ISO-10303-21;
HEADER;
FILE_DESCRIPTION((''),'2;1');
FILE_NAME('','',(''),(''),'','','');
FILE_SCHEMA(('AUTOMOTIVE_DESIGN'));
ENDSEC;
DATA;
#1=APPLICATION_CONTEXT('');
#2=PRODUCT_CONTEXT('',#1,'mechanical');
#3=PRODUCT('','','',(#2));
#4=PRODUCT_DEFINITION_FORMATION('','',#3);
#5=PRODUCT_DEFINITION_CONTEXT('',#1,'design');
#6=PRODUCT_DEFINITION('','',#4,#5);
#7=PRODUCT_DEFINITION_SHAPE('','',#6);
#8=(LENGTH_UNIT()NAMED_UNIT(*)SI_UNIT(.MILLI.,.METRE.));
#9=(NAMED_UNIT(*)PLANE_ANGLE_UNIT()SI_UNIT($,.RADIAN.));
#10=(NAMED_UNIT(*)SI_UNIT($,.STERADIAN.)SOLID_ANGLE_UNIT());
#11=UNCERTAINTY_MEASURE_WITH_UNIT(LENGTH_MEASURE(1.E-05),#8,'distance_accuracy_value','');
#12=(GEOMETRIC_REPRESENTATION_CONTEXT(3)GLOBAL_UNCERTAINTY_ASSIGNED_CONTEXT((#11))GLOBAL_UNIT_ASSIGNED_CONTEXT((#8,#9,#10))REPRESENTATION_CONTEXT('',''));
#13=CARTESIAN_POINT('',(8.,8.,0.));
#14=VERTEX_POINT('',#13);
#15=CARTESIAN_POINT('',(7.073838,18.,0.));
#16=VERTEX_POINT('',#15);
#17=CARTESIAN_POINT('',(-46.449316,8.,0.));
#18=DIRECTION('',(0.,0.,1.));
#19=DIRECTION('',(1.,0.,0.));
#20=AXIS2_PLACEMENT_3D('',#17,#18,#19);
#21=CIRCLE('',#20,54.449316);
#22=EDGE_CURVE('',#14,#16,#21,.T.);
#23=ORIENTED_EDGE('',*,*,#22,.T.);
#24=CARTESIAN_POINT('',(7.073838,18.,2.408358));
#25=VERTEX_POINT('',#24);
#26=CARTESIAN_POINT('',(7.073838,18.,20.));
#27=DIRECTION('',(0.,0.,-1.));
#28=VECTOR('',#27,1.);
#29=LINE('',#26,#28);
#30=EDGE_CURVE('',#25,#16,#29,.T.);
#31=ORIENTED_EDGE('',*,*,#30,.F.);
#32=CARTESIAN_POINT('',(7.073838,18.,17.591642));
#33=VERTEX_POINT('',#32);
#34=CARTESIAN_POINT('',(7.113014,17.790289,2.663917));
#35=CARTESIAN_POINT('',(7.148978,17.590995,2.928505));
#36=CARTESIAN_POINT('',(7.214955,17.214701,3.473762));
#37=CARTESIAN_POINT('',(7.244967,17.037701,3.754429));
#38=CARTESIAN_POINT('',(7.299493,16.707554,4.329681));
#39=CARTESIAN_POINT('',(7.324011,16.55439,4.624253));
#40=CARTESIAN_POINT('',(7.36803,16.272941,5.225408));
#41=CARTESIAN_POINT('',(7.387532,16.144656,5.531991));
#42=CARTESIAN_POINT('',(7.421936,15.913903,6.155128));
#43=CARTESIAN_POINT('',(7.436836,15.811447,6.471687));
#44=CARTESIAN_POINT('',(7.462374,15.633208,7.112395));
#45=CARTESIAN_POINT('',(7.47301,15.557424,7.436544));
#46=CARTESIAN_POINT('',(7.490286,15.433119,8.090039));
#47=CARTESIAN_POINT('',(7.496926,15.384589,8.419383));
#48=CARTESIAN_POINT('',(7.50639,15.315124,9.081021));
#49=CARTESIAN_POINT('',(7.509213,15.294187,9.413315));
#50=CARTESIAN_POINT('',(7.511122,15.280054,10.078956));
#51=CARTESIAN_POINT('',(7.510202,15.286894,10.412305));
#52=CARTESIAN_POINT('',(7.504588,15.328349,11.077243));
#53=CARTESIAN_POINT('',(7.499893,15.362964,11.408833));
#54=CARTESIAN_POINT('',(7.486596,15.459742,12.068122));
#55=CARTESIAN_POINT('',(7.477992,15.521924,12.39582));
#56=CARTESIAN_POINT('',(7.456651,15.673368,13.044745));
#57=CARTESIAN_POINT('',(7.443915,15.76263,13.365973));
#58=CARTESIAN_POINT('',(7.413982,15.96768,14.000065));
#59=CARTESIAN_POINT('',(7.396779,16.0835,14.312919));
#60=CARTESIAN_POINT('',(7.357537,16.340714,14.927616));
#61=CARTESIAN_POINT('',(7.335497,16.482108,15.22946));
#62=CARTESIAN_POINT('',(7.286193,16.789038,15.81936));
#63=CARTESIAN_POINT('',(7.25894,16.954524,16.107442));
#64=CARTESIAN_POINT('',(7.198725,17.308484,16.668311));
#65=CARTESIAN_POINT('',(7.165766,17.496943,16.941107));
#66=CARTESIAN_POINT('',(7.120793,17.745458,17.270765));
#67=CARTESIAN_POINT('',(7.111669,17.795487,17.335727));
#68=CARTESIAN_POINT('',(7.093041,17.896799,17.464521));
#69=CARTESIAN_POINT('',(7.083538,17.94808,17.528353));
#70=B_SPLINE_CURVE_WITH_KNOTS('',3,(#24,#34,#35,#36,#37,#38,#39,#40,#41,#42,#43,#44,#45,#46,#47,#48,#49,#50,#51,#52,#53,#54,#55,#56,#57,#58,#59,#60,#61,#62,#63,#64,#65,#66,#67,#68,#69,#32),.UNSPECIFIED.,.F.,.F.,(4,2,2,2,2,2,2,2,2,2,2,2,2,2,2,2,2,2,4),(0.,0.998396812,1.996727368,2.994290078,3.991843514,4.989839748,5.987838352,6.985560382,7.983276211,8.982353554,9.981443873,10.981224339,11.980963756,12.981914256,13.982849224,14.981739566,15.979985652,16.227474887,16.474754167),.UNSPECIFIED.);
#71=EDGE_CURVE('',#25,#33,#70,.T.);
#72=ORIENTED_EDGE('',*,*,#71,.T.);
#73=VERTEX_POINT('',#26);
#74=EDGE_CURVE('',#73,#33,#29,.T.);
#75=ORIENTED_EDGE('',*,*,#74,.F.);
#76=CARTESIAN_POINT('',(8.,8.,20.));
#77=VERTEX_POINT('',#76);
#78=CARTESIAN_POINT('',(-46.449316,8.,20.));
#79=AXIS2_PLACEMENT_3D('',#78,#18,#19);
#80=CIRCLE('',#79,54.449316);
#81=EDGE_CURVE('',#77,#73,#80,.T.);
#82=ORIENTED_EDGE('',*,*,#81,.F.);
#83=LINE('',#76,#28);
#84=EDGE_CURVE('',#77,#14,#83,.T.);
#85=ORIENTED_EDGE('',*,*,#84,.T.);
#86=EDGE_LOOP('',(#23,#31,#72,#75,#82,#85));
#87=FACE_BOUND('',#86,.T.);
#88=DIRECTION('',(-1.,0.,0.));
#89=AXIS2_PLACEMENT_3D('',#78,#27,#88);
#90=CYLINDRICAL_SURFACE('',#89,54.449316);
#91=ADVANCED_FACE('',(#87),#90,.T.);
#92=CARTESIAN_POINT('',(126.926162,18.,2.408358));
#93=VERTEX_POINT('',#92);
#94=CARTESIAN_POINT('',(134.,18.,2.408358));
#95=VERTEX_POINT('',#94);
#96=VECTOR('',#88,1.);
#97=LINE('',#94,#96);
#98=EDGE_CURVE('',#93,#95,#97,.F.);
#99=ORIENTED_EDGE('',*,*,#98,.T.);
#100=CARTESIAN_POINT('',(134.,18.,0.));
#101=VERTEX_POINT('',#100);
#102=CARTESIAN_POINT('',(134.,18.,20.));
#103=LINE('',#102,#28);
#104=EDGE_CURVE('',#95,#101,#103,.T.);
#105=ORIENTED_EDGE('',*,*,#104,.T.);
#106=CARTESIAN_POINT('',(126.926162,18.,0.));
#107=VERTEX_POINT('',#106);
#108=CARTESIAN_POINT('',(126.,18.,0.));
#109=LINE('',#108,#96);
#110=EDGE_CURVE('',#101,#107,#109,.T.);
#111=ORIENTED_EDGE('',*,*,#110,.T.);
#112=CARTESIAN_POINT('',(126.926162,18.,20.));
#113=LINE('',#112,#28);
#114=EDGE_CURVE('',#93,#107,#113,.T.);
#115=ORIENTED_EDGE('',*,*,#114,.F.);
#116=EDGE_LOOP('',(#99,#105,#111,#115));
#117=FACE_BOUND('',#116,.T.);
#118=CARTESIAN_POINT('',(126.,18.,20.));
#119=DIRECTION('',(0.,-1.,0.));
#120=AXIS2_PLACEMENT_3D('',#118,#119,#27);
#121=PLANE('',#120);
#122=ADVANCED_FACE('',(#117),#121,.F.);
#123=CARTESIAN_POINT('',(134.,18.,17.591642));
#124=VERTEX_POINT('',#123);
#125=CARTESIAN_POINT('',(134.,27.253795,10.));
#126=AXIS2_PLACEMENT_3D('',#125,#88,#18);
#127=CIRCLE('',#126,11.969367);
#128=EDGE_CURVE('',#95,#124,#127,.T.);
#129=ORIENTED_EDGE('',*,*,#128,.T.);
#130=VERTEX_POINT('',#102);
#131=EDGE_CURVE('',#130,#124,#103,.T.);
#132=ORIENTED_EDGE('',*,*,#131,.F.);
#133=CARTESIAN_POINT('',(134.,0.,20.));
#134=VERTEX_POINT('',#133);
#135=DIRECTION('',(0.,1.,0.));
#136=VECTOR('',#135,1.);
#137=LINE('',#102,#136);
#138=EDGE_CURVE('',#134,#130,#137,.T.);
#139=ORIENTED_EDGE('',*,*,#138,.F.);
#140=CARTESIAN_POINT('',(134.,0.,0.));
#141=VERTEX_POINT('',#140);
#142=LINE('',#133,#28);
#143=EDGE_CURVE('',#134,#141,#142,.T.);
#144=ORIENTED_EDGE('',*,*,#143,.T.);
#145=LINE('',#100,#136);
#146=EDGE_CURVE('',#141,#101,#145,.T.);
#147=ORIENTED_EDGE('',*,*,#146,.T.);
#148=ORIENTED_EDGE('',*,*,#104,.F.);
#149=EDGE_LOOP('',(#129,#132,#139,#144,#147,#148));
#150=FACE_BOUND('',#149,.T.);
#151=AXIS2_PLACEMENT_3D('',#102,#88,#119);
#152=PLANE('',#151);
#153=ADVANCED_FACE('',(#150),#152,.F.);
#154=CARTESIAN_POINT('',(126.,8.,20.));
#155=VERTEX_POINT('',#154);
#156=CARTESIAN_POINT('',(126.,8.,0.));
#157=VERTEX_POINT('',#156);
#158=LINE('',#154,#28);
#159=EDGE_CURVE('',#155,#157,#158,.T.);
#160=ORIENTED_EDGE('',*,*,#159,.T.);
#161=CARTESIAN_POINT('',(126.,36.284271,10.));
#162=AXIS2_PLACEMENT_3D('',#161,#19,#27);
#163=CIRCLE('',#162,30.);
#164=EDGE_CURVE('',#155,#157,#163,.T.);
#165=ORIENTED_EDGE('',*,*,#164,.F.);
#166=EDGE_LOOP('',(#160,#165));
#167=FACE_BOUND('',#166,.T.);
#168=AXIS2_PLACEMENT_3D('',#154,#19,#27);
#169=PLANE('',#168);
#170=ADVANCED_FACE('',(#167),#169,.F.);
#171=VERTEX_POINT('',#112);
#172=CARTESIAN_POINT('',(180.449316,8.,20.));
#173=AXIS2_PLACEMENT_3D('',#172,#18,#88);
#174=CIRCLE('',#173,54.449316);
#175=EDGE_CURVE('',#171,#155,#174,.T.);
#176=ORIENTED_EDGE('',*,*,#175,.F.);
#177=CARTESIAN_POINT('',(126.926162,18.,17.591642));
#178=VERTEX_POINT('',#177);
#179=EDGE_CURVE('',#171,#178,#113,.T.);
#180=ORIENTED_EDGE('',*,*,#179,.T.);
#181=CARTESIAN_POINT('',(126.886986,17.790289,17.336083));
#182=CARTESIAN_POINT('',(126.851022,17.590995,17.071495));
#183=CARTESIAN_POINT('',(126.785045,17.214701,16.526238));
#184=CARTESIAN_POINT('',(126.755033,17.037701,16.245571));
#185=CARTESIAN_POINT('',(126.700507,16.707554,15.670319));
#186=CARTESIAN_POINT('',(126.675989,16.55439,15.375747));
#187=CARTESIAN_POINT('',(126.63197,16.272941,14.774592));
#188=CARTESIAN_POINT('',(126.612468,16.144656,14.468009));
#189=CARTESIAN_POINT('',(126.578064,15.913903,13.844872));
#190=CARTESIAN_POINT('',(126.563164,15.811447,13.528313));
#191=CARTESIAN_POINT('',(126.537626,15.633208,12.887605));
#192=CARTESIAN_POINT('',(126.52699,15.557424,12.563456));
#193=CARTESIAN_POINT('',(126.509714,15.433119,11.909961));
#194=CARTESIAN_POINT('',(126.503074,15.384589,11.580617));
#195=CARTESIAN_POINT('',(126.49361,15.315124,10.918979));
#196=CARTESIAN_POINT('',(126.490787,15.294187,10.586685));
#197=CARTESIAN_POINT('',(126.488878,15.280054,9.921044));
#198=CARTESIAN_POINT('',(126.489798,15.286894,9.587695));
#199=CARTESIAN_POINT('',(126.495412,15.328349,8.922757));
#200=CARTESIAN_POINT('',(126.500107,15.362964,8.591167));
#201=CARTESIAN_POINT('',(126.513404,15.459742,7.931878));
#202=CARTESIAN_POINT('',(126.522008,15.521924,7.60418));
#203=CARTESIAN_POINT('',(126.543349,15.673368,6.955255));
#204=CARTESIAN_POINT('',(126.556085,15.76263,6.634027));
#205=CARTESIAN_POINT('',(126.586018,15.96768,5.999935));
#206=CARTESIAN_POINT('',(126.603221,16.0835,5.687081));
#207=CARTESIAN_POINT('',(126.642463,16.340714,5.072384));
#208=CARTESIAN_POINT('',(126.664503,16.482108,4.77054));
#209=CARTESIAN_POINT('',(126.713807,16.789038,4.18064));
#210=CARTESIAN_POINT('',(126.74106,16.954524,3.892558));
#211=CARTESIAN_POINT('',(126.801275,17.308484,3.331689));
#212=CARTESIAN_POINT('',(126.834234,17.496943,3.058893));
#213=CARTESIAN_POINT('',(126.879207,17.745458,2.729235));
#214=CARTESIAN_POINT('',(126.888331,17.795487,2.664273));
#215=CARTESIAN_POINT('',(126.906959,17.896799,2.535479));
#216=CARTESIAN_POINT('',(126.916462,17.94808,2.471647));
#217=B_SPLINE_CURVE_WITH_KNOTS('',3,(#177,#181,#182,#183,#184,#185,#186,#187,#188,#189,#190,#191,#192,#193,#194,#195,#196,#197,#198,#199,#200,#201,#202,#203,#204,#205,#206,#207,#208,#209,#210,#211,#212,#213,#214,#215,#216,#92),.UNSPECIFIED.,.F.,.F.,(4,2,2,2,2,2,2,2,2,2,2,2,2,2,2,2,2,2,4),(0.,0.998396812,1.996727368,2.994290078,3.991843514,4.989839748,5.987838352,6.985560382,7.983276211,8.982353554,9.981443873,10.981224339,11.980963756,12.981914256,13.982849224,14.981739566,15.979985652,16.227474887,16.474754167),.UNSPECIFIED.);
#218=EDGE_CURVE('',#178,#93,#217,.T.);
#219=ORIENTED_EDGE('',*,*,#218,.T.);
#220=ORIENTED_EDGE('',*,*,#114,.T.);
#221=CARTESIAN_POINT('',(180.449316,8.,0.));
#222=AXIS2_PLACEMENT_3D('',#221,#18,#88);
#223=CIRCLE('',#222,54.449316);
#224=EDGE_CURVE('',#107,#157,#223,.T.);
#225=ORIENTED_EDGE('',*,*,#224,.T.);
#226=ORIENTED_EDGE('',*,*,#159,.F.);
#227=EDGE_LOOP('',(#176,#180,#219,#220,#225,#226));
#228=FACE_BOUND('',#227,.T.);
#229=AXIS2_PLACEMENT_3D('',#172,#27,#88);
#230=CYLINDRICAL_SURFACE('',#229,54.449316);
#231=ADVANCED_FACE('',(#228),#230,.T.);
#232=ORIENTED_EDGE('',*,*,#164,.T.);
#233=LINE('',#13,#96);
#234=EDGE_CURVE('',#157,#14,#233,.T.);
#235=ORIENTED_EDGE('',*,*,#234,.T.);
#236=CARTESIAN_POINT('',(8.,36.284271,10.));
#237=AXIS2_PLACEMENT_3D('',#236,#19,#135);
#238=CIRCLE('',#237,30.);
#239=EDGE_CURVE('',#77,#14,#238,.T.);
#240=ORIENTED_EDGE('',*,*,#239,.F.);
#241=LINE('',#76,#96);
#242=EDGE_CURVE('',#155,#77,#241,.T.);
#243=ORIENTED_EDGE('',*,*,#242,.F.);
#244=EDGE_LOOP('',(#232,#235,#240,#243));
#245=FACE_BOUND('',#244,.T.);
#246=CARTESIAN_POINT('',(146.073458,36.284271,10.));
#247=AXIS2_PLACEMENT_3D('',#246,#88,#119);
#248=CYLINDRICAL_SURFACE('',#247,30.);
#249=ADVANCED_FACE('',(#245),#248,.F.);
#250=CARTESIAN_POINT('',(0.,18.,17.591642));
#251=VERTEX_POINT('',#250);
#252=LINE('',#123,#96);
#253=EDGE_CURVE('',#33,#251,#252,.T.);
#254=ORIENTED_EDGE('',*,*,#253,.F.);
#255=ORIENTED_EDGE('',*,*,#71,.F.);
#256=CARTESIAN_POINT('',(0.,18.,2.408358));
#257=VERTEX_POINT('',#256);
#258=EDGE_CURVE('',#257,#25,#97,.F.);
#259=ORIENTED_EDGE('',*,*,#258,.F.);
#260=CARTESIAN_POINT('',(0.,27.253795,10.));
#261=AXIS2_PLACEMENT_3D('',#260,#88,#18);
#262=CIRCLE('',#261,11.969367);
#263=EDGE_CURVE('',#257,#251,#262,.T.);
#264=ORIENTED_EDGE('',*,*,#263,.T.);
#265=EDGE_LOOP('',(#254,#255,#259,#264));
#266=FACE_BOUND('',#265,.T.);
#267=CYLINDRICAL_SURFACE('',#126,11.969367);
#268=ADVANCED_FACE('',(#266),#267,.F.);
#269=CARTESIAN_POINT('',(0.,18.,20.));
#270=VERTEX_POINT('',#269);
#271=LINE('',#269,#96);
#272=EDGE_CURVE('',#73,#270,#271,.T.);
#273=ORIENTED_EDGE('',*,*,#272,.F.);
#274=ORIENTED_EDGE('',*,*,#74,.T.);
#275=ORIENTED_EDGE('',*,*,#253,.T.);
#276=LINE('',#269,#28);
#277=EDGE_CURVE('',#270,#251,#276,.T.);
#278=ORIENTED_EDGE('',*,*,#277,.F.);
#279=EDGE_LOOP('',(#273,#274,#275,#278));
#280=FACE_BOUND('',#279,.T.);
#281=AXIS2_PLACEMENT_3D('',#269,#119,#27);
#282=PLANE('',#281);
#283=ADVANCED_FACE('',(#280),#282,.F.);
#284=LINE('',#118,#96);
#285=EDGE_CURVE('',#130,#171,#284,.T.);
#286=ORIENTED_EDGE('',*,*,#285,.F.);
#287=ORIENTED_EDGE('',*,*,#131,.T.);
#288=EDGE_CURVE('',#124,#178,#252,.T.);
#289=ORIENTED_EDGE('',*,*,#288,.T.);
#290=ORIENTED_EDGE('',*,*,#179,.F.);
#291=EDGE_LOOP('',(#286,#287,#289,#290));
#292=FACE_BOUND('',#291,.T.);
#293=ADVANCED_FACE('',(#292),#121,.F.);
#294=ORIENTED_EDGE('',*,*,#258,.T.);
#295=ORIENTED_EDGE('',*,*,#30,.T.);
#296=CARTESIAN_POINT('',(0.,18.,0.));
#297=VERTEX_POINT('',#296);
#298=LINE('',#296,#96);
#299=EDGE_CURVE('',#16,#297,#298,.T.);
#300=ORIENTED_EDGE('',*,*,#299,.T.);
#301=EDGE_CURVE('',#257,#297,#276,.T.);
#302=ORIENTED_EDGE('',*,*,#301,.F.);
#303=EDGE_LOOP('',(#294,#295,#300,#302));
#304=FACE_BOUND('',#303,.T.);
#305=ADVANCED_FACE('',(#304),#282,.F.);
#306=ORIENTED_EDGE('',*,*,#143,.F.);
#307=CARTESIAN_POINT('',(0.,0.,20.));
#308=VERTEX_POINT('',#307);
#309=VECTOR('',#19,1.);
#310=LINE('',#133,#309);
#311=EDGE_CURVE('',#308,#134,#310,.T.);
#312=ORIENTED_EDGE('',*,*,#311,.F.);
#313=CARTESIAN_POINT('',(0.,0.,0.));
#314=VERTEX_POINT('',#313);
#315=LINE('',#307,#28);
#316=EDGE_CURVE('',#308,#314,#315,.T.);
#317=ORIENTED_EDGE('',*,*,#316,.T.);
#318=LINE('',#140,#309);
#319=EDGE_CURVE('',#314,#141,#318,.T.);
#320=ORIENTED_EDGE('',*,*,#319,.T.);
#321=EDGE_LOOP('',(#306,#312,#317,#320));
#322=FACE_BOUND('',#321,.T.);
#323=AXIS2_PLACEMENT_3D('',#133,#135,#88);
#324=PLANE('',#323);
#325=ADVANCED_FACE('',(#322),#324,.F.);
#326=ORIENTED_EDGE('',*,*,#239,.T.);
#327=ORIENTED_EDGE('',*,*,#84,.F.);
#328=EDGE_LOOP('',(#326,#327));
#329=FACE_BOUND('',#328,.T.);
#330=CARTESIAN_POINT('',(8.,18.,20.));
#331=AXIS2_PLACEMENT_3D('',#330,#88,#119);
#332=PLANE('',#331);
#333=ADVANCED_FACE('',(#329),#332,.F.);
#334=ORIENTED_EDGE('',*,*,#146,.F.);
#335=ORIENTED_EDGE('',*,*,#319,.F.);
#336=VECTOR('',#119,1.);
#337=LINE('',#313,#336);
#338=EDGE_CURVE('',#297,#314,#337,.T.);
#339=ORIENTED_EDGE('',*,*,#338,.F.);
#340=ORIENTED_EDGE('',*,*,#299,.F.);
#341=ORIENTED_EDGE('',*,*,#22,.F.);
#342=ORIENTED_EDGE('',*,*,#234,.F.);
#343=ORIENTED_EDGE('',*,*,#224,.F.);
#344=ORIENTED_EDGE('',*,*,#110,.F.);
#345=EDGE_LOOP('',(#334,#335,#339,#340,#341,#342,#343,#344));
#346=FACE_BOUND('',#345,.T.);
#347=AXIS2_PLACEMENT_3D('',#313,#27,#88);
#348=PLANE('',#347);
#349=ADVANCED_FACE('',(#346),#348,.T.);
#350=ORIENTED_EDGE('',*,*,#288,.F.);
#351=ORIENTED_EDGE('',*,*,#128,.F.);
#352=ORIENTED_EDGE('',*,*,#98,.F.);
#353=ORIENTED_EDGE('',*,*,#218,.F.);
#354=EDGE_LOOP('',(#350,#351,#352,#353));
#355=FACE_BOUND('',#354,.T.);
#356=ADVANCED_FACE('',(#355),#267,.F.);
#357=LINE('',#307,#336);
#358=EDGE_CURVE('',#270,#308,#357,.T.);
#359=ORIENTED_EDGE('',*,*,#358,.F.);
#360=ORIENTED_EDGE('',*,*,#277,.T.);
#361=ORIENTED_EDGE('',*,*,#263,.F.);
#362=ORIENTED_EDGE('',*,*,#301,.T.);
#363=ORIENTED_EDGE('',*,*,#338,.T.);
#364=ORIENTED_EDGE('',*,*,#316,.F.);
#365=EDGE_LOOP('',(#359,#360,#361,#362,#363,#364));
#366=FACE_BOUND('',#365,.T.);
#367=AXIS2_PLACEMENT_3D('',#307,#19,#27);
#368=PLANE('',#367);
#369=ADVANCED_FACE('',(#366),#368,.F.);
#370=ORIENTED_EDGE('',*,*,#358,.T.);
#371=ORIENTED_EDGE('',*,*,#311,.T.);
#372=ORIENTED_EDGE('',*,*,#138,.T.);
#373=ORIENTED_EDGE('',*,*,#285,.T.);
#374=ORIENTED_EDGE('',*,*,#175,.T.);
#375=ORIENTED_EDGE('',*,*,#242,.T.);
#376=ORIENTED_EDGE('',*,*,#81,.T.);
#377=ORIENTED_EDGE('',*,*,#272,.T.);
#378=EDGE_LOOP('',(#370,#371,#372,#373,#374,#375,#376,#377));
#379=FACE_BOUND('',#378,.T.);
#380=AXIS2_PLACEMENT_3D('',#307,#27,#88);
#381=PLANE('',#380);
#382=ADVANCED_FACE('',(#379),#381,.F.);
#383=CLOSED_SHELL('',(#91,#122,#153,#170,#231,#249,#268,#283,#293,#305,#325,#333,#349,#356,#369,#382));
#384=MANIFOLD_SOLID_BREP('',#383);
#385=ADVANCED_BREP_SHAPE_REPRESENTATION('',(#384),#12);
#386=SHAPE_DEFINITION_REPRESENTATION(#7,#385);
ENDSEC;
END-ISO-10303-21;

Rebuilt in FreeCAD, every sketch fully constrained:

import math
import FreeCAD as App
import Part
import Sketcher
from FreeCAD import Vector


def add_polygon(sketch, points):
    """Adds a closed chain of lines whose ends are joined by coincident constraints."""
    first, n = sketch.GeometryCount, len(points)
    for a, b in zip(points, points[1:] + points[:1]):
        sketch.addGeometry(Part.LineSegment(App.Vector(*a, 0), App.Vector(*b, 0)), False)
    for i in range(n):
        sketch.addConstraint(Sketcher.Constraint("Coincident", first + i, 2, first + (i + 1) % n, 1))

doc = App.newDocument("Part")
body = doc.addObject("PartDesign::Body", "Body")

sketch1 = body.newObject("Sketcher::SketchObject", "Sketch")
sketch1.AttachmentSupport = (doc.getObject("XY_Plane"), [""])
sketch1.MapMode = "FlatFace"
add_polygon(sketch1, [(0, 18), (0, 0), (134, 0), (134, 18), (126, 18), (126, 8), (8, 8), (8, 18)])
sketch1.addConstraint(Sketcher.Constraint("Vertical", 0))
sketch1.addConstraint(Sketcher.Constraint("Horizontal", 1))
sketch1.addConstraint(Sketcher.Constraint("Vertical", 2))
sketch1.addConstraint(Sketcher.Constraint("Horizontal", 3))
sketch1.addConstraint(Sketcher.Constraint("Vertical", 4))
sketch1.addConstraint(Sketcher.Constraint("Horizontal", 5))
sketch1.addConstraint(Sketcher.Constraint("Vertical", 6))
sketch1.addConstraint(Sketcher.Constraint("Horizontal", 7))
sketch1.addConstraint(Sketcher.Constraint("Coincident", 0, 2, -1, 1))
sketch1.addConstraint(Sketcher.Constraint("Horizontal", 3, 2, 6, 2))
sketch1.addConstraint(Sketcher.Constraint("Equal", 3, 7))
sketch1.addConstraint(Sketcher.Constraint("DistanceX", 1, 1, 1, 2, 134.0))
sketch1.addConstraint(Sketcher.Constraint("DistanceX", 3, 2, 3, 1, 8.0))
sketch1.addConstraint(Sketcher.Constraint("DistanceY", 0, 2, 0, 1, 18.0))
sketch1.addConstraint(Sketcher.Constraint("DistanceY", 4, 2, 4, 1, 10.0))
pad1 = body.newObject("PartDesign::Pad", "Pad")
pad1.Profile = sketch1
pad1.Length = 20

sketch2 = body.newObject("Sketcher::SketchObject", "Sketch001")
sketch2.AttachmentSupport = (doc.getObject("YZ_Plane"), [""])
sketch2.MapMode = "FlatFace"
sketch2.AttachmentOffset = App.Placement(Vector(0, 0, 8), App.Rotation())
sketch2.addGeometry(Part.LineSegment(Vector(8, 0, 0), Vector(8, 20, 0)), False)
sketch2.addGeometry(Part.ArcOfCircle(Part.Circle(Vector(36, 10, 0), Vector(0, 0, 1), 30), math.radians(161), math.radians(199)), False)
sketch2.addConstraint(Sketcher.Constraint("Coincident", 0, 1, 1, 2))
sketch2.addConstraint(Sketcher.Constraint("Coincident", 1, 1, 0, 2))
sketch2.addConstraint(Sketcher.Constraint("Vertical", 0))
sketch2.addConstraint(Sketcher.Constraint("PointOnObject", 0, 1, -1))
sketch2.addConstraint(Sketcher.Constraint("Radius", 1, 30.0))
sketch2.addConstraint(Sketcher.Constraint("DistanceY", 0, 1, 0, 2, 20.0))
sketch2.addConstraint(Sketcher.Constraint("DistanceX", -1, 1, 0, 1, 8.0))
pocket1 = body.newObject("PartDesign::Pocket", "Pocket")
pocket1.Profile = sketch2
pocket1.Length = 118
pocket1.Reversed = True

sketch3 = body.newObject("Sketcher::SketchObject", "Sketch002")
sketch3.AttachmentSupport = (doc.getObject("XY_Plane"), [""])
sketch3.MapMode = "FlatFace"
sketch3.addGeometry(Part.LineSegment(Vector(7.1, 18, 0), Vector(8, 18, 0)), False)
sketch3.addGeometry(Part.LineSegment(Vector(8, 18, 0), Vector(8, 8, 0)), False)
sketch3.addGeometry(Part.ArcOfCircle(Part.Circle(Vector(-46.4, 8, 0), Vector(0, 0, 1), 54.4), math.radians(0), math.radians(10.58)), False)
sketch3.addGeometry(Part.LineSegment(Vector(126, 8, 0), Vector(126, 18, 0)), False)
sketch3.addGeometry(Part.LineSegment(Vector(126, 18, 0), Vector(126.9, 18, 0)), False)
sketch3.addGeometry(Part.ArcOfCircle(Part.Circle(Vector(180.4, 8, 0), Vector(0, 0, 1), 54.4), math.radians(169.42), math.radians(180)), False)
sketch3.addConstraint(Sketcher.Constraint("Coincident", 0, 2, 1, 1))
sketch3.addConstraint(Sketcher.Constraint("Tangent", 1, 2, 2, 1))
sketch3.addConstraint(Sketcher.Constraint("Coincident", 2, 2, 0, 1))
sketch3.addConstraint(Sketcher.Constraint("Coincident", 3, 2, 4, 1))
sketch3.addConstraint(Sketcher.Constraint("Coincident", 4, 2, 5, 1))
sketch3.addConstraint(Sketcher.Constraint("Tangent", 5, 2, 3, 1))
sketch3.addConstraint(Sketcher.Constraint("Horizontal", 0))
sketch3.addConstraint(Sketcher.Constraint("Vertical", 1))
sketch3.addConstraint(Sketcher.Constraint("Vertical", 3))
sketch3.addConstraint(Sketcher.Constraint("Horizontal", 4))
sketch3.addConstraint(Sketcher.Constraint("Equal", 2, 5))
sketch3.addConstraint(Sketcher.Constraint("Horizontal", 2, 3, 5, 3))
sketch3.addConstraint(Sketcher.Constraint("Horizontal", 2, 2, 3, 2))
sketch3.addConstraint(Sketcher.Constraint("DistanceY", 1, 2, 1, 1, 10.0))
sketch3.addConstraint(Sketcher.Constraint("DistanceY", -1, 1, 2, 3, 8.0))
sketch3.addConstraint(Sketcher.Constraint("DistanceX", -1, 1, 0, 2, 8.0))
sketch3.addConstraint(Sketcher.Constraint("DistanceX", -1, 1, 3, 2, 126.0))
sketch3.addConstraint(Sketcher.Constraint("Radius", 2, 54.449316))
pocket2 = body.newObject("PartDesign::Pocket", "Pocket001")
pocket2.Profile = sketch3
pocket2.Type = "ThroughAll"
pocket2.Reversed = True

sketch4 = body.newObject("Sketcher::SketchObject", "Sketch003")
sketch4.AttachmentSupport = (doc.getObject("YZ_Plane"), [""])
sketch4.MapMode = "FlatFace"
sketch4.addGeometry(Part.Circle(Vector(27, 10, 0), Vector(0, 0, 1), 12), False)
sketch4.addConstraint(Sketcher.Constraint("DistanceY", -1, 1, 0, 3, 10.0))
sketch4.addConstraint(Sketcher.Constraint("Diameter", 0, 23.938734))
sketch4.addConstraint(Sketcher.Constraint("DistanceX", -1, 1, 0, 3, 27.253795))
pocket3 = body.newObject("PartDesign::Pocket", "Pocket002")
pocket3.Profile = sketch4
pocket3.Type = "ThroughAll"
pocket3.Reversed = True

doc.recompute()
